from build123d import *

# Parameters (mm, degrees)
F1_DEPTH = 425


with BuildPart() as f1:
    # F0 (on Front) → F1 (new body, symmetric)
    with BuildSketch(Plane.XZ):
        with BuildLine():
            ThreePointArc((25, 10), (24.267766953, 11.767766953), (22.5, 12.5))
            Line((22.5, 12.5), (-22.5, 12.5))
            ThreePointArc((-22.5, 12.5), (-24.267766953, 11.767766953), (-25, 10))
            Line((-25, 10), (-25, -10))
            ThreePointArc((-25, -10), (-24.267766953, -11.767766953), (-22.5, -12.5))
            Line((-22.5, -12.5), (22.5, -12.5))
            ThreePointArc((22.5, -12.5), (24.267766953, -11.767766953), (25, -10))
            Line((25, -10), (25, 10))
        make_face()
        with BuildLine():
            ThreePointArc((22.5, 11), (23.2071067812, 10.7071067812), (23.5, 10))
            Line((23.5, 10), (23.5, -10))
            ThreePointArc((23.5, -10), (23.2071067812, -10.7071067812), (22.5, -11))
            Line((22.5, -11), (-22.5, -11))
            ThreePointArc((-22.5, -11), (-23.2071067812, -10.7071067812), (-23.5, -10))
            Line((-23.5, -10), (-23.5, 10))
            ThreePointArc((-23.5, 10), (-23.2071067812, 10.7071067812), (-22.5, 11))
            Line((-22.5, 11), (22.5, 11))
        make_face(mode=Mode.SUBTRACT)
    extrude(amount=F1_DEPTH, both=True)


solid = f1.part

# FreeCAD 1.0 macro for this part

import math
import FreeCAD as App
import Part
import Sketcher
Q = App.Units.Quantity

doc = App.newDocument("Part")
params = doc.addObject("Spreadsheet::Sheet", "Params")
for row, (alias, value) in enumerate([
    ("sketch1_radius", "1 mm"),
    ("sketch1_radius2", "2.5 mm"),
    ("sketch1_width", "45 mm"),
    ("sketch1_height", "20 mm"),
    ("pad1_length", "850 mm"),
], start=1):
    params.set(f"A{row}", alias)
    params.set(f"B{row}", "=" + value)
    params.setAlias(f"B{row}", alias)

body = doc.addObject("PartDesign::Body", "Body")

# Sketch on XZ plane
sketch1 = body.newObject("Sketcher::SketchObject", "Sketch")
sketch1.AttachmentSupport = (doc.getObject("XZ_Plane"), [""])
sketch1.MapMode = "FlatFace"
sketch1.addGeometry(Part.ArcOfCircle(Part.Circle(App.Vector(22.5, 10, 0), App.Vector(0, 0, 1), 2.5), math.radians(0), math.radians(90)), False)
sketch1.addGeometry(Part.LineSegment(App.Vector(22.5, 12.5, 0), App.Vector(-22.5, 12.5, 0)), False)
sketch1.addGeometry(Part.ArcOfCircle(Part.Circle(App.Vector(-22.5, 10, 0), App.Vector(0, 0, 1), 2.5), math.radians(90), math.radians(180)), False)
sketch1.addGeometry(Part.LineSegment(App.Vector(-25, 10, 0), App.Vector(-25, -10, 0)), False)
sketch1.addGeometry(Part.ArcOfCircle(Part.Circle(App.Vector(-22.5, -10, 0), App.Vector(0, 0, 1), 2.5), math.radians(180), math.radians(270)), False)
sketch1.addGeometry(Part.LineSegment(App.Vector(-22.5, -12.5, 0), App.Vector(22.5, -12.5, 0)), False)
sketch1.addGeometry(Part.ArcOfCircle(Part.Circle(App.Vector(22.5, -10, 0), App.Vector(0, 0, 1), 2.5), math.radians(-90), math.radians(0)), False)
sketch1.addGeometry(Part.LineSegment(App.Vector(25, -10, 0), App.Vector(25, 10, 0)), False)
sketch1.addGeometry(Part.LineSegment(App.Vector(-22.5, 11, 0), App.Vector(22.5, 11, 0)), False)
sketch1.addGeometry(Part.ArcOfCircle(Part.Circle(App.Vector(22.5, 10, 0), App.Vector(0, 0, 1), 1), math.radians(0), math.radians(90)), False)
sketch1.addGeometry(Part.LineSegment(App.Vector(23.5, 10, 0), App.Vector(23.5, -10, 0)), False)
sketch1.addGeometry(Part.ArcOfCircle(Part.Circle(App.Vector(22.5, -10, 0), App.Vector(0, 0, 1), 1), math.radians(-90), math.radians(0)), False)
sketch1.addGeometry(Part.LineSegment(App.Vector(22.5, -11, 0), App.Vector(-22.5, -11, 0)), False)
sketch1.addGeometry(Part.ArcOfCircle(Part.Circle(App.Vector(-22.5, -10, 0), App.Vector(0, 0, 1), 1), math.radians(180), math.radians(270)), False)
sketch1.addGeometry(Part.LineSegment(App.Vector(-23.5, -10, 0), App.Vector(-23.5, 10, 0)), False)
sketch1.addGeometry(Part.ArcOfCircle(Part.Circle(App.Vector(-22.5, 10, 0), App.Vector(0, 0, 1), 1), math.radians(90), math.radians(180)), False)
sketch1.addConstraint(Sketcher.Constraint("Tangent", 0, 2, 1, 1))
sketch1.addConstraint(Sketcher.Constraint("Tangent", 1, 2, 2, 1))
sketch1.addConstraint(Sketcher.Constraint("Tangent", 2, 2, 3, 1))
sketch1.addConstraint(Sketcher.Constraint("Tangent", 3, 2, 4, 1))
sketch1.addConstraint(Sketcher.Constraint("Tangent", 4, 2, 5, 1))
sketch1.addConstraint(Sketcher.Constraint("Tangent", 5, 2, 6, 1))
sketch1.addConstraint(Sketcher.Constraint("Tangent", 6, 2, 7, 1))
sketch1.addConstraint(Sketcher.Constraint("Tangent", 7, 2, 0, 1))
sketch1.addConstraint(Sketcher.Constraint("Tangent", 8, 2, 9, 2))
sketch1.addConstraint(Sketcher.Constraint("Tangent", 9, 1, 10, 1))
sketch1.addConstraint(Sketcher.Constraint("Tangent", 10, 2, 11, 2))
sketch1.addConstraint(Sketcher.Constraint("Tangent", 11, 1, 12, 1))
sketch1.addConstraint(Sketcher.Constraint("Tangent", 12, 2, 13, 2))
sketch1.addConstraint(Sketcher.Constraint("Tangent", 13, 1, 14, 1))
sketch1.addConstraint(Sketcher.Constraint("Tangent", 14, 2, 15, 2))
sketch1.addConstraint(Sketcher.Constraint("Tangent", 15, 1, 8, 1))
sketch1.addConstraint(Sketcher.Constraint("Horizontal", 1))
sketch1.addConstraint(Sketcher.Constraint("Vertical", 3))
sketch1.addConstraint(Sketcher.Constraint("Horizontal", 5))
sketch1.addConstraint(Sketcher.Constraint("Vertical", 7))
sketch1.addConstraint(Sketcher.Constraint("Horizontal", 8))
sketch1.addConstraint(Sketcher.Constraint("Vertical", 10))
sketch1.addConstraint(Sketcher.Constraint("Horizontal", 12))
sketch1.addConstraint(Sketcher.Constraint("Vertical", 14))
sketch1.addConstraint(Sketcher.Constraint("Coincident", 9, 3, 0, 3))
sketch1.addConstraint(Sketcher.Constraint("Coincident", 11, 3, 6, 3))
sketch1.addConstraint(Sketcher.Constraint("Coincident", 13, 3, 4, 3))
sketch1.addConstraint(Sketcher.Constraint("Equal", 0, 2))
sketch1.addConstraint(Sketcher.Constraint("Equal", 2, 4))
sketch1.addConstraint(Sketcher.Constraint("Equal", 4, 6))
sketch1.addConstraint(Sketcher.Constraint("Equal", 13, 15))
sketch1.addConstraint(Sketcher.Constraint("Symmetric", 0, 3, 4, 3, -1, 1))
sketch1.addConstraint(Sketcher.Constraint("Radius", 9, Q("1 mm")))
sketch1.addConstraint(Sketcher.Constraint("Radius", 0, Q("2.5 mm")))
sketch1.addConstraint(Sketcher.Constraint("DistanceX", 1, 2, 1, 1, Q("45 mm")))
sketch1.addConstraint(Sketcher.Constraint("DistanceY", 3, 2, 3, 1, Q("20 mm")))
sketch1.setExpression("Constraints[32]", "Params.sketch1_radius")
sketch1.setExpression("Constraints[33]", "Params.sketch1_radius2")
sketch1.setExpression("Constraints[34]", "Params.sketch1_width")
sketch1.setExpression("Constraints[35]", "Params.sketch1_height")
pad1 = body.newObject("PartDesign::Pad", "Pad")
pad1.Profile = sketch1
pad1.setExpression("Length", "Params.pad1_length")
pad1.Midplane = True

doc.recompute()
